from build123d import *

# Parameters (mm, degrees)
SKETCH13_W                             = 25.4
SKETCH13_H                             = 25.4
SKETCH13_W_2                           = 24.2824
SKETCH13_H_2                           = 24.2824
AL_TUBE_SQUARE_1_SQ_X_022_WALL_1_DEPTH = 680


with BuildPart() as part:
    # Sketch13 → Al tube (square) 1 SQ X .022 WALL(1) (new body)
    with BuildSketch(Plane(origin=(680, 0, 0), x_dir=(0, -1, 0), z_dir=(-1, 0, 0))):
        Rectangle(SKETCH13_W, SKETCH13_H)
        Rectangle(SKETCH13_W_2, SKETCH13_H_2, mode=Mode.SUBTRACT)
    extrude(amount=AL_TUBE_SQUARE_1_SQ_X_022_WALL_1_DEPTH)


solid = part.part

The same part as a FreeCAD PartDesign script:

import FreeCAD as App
import Part
import Sketcher
Q = App.Units.Quantity


def add_polygon(sketch, points):
    """Adds a closed chain of lines whose ends are joined by coincident constraints."""
    first, n = sketch.GeometryCount, len(points)
    for a, b in zip(points, points[1:] + points[:1]):
        sketch.addGeometry(Part.LineSegment(App.Vector(*a, 0), App.Vector(*b, 0)), False)
    for i in range(n):
        sketch.addConstraint(Sketcher.Constraint("Coincident", first + i, 2, first + (i + 1) % n, 1))

doc = App.newDocument("Part")
body = doc.addObject("PartDesign::Body", "Body")

sketch1 = body.newObject("Sketcher::SketchObject", "Sketch")
sketch1.AttachmentSupport = (doc.getObject("YZ_Plane"), [""])
sketch1.MapMode = "FlatFace"
sketch1.AttachmentOffset = App.Placement(App.Vector(0, 0, 680), App.Rotation())
add_polygon(sketch1, [(13, 13), (13, -13), (-13, -13), (-13, 13)])
add_polygon(sketch1, [(-12, -12), (12, -12), (12, 12), (-12, 12)])
sketch1.addConstraint([
    Sketcher.Constraint("Vertical", 0),
    Sketcher.Constraint("Horizontal", 1),
    Sketcher.Constraint("Vertical", 2),
    Sketcher.Constraint("Horizontal", 3),
    Sketcher.Constraint("Horizontal", 4),
    Sketcher.Constraint("Vertical", 5),
    Sketcher.Constraint("Horizontal", 6),
    Sketcher.Constraint("Vertical", 7),
    Sketcher.Constraint("Symmetric", 0, 2, 2, 2, -1, 1),
    Sketcher.Constraint("Symmetric", 4, 2, 6, 2, -1, 1),
    Sketcher.Constraint("Equal", 3, 0),
    Sketcher.Constraint("Equal", 6, 5),
    Sketcher.Constraint("DistanceX", 1, 2, 1, 1, Q("1 in")),
    Sketcher.Constraint("DistanceX", 4, 1, 4, 2, Q("0.956 in")),
])
pad1 = body.newObject("PartDesign::Pad", "Pad")
pad1.Profile = sketch1
pad1.Length = 680
pad1.Reversed = True

doc.recompute()
